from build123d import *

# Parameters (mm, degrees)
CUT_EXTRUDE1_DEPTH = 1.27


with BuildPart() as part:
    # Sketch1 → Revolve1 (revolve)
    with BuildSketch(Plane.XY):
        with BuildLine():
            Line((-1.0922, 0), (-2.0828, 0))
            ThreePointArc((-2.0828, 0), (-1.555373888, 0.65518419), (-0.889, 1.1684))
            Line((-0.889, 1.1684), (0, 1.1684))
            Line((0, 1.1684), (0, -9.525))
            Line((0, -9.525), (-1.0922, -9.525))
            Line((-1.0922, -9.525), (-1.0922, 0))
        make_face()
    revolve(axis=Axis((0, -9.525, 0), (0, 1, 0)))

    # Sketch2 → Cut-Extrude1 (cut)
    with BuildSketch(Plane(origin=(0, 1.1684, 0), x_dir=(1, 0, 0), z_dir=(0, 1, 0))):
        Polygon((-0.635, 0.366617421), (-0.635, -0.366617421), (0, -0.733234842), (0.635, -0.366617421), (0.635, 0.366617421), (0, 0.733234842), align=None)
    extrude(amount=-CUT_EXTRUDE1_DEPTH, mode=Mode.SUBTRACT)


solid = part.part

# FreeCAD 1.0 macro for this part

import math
import FreeCAD as App
import Part
import Sketcher
Q = App.Units.Quantity

doc = App.newDocument("Part")
body = doc.addObject("PartDesign::Body", "Body")

# Sketch on XY plane
sketch1 = body.newObject("Sketcher::SketchObject", "Sketch")
sketch1.AttachmentSupport = (doc.getObject("XY_Plane"), [""])
sketch1.MapMode = "FlatFace"
sketch1.addGeometry([
    Part.LineSegment(App.Vector(-2.1, 0, 0), App.Vector(-1.1, 0, 0)),  # 0
    Part.LineSegment(App.Vector(-1.1, 0, 0), App.Vector(-1.1, -9.5, 0)),  # 1
    Part.LineSegment(App.Vector(-1.1, -9.5, 0), App.Vector(0, -9.5, 0)),  # 2
    Part.LineSegment(App.Vector(0, -9.5, 0), App.Vector(0, 1.2, 0)),  # 3
    Part.LineSegment(App.Vector(0, 1.2, 0), App.Vector(-0.9, 1.2, 0)),  # 4
    Part.ArcOfCircle(Part.Circle(App.Vector(0.9, -1.9, 0), App.Vector(0, 0, 1), 3.6), math.radians(121), math.radians(148)),  # 5
], False)
sketch1.addConstraint([
    Sketcher.Constraint("Coincident", 0, 2, 1, 1),
    Sketcher.Constraint("Coincident", 1, 2, 2, 1),
    Sketcher.Constraint("Coincident", 2, 2, 3, 1),
    Sketcher.Constraint("Coincident", 3, 2, 4, 1),
    Sketcher.Constraint("Coincident", 4, 2, 5, 1),
    Sketcher.Constraint("Coincident", 5, 2, 0, 1),
    Sketcher.Constraint("Horizontal", 0),
    Sketcher.Constraint("Vertical", 1),
    Sketcher.Constraint("Horizontal", 2),
    Sketcher.Constraint("Vertical", 3),
    Sketcher.Constraint("Horizontal", 4),
    Sketcher.Constraint("PointOnObject", 0, 2, -1),
    Sketcher.Constraint("PointOnObject", 2, 2, -2),
    Sketcher.Constraint("DistanceX", 0, 1, 0, 2, Q("0.039 in")),
    Sketcher.Constraint("DistanceX", 2, 1, 2, 2, Q("0.043 in")),
    Sketcher.Constraint("DistanceX", 4, 2, 4, 1, Q("0.035 in")),
    Sketcher.Constraint("DistanceY", 1, 2, 1, 1, Q("0.375 in")),
    Sketcher.Constraint("DistanceY", 3, 1, 3, 2, Q("0.421 in")),
    Sketcher.Constraint("Radius", 5, 3.561276),
])
revolution = body.newObject("PartDesign::Revolution", "Revolution")
revolution.Profile = sketch1
revolution.ReferenceAxis = (sketch1, ["V_Axis"])
revolution.Angle = 360

# Sketch on XZ plane
sketch2 = body.newObject("Sketcher::SketchObject", "Sketch001")
sketch2.AttachmentSupport = (doc.getObject("XZ_Plane"), [""])
sketch2.MapMode = "FlatFace"
sketch2.AttachmentOffset = App.Placement(App.Vector(0, 0, -0.046 * 25.4), App.Rotation())
sketch2.addGeometry([
    Part.LineSegment(App.Vector(-0.6, -0.4, 0), App.Vector(-0.6, 0.4, 0)),  # 0
    Part.LineSegment(App.Vector(-0.6, 0.4, 0), App.Vector(0, 0.7, 0)),  # 1
    Part.LineSegment(App.Vector(0, 0.7, 0), App.Vector(0.6, 0.4, 0)),  # 2
    Part.LineSegment(App.Vector(0.6, 0.4, 0), App.Vector(0.6, -0.4, 0)),  # 3
    Part.LineSegment(App.Vector(0.6, -0.4, 0), App.Vector(0, -0.7, 0)),  # 4
    Part.LineSegment(App.Vector(0, -0.7, 0), App.Vector(-0.6, -0.4, 0)),  # 5
], False)
sketch2.addConstraint([
    Sketcher.Constraint("Coincident", 0, 2, 1, 1),
    Sketcher.Constraint("Coincident", 1, 2, 2, 1),
    Sketcher.Constraint("Coincident", 2, 2, 3, 1),
    Sketcher.Constraint("Coincident", 3, 2, 4, 1),
    Sketcher.Constraint("Coincident", 4, 2, 5, 1),
    Sketcher.Constraint("Coincident", 5, 2, 0, 1),
    Sketcher.Constraint("Vertical", 0),
    Sketcher.Constraint("Vertical", 3),
    Sketcher.Constraint("Symmetric", 0, 2, 3, 2, -1, 1),
    Sketcher.Constraint("Symmetric", 1, 2, 4, 2, -1, 1),
    Sketcher.Constraint("PointOnObject", 1, 2, -2),
    Sketcher.Constraint("Parallel", 2, 5),
    Sketcher.Constraint("Horizontal", 0, 2, 2, 2),
    Sketcher.Constraint("Angle", 1, Q("30 deg")),
    Sketcher.Constraint("DistanceX", 0, 2, 2, 2, Q("0.05 in")),
    Sketcher.Constraint("DistanceY", 0, 1, 0, 2, 0.733235),
])
pocket1 = body.newObject("PartDesign::Pocket", "Pocket")
pocket1.Profile = sketch2
pocket1.Length = Q("0.05 in")
pocket1.Reversed = True

doc.recompute()
